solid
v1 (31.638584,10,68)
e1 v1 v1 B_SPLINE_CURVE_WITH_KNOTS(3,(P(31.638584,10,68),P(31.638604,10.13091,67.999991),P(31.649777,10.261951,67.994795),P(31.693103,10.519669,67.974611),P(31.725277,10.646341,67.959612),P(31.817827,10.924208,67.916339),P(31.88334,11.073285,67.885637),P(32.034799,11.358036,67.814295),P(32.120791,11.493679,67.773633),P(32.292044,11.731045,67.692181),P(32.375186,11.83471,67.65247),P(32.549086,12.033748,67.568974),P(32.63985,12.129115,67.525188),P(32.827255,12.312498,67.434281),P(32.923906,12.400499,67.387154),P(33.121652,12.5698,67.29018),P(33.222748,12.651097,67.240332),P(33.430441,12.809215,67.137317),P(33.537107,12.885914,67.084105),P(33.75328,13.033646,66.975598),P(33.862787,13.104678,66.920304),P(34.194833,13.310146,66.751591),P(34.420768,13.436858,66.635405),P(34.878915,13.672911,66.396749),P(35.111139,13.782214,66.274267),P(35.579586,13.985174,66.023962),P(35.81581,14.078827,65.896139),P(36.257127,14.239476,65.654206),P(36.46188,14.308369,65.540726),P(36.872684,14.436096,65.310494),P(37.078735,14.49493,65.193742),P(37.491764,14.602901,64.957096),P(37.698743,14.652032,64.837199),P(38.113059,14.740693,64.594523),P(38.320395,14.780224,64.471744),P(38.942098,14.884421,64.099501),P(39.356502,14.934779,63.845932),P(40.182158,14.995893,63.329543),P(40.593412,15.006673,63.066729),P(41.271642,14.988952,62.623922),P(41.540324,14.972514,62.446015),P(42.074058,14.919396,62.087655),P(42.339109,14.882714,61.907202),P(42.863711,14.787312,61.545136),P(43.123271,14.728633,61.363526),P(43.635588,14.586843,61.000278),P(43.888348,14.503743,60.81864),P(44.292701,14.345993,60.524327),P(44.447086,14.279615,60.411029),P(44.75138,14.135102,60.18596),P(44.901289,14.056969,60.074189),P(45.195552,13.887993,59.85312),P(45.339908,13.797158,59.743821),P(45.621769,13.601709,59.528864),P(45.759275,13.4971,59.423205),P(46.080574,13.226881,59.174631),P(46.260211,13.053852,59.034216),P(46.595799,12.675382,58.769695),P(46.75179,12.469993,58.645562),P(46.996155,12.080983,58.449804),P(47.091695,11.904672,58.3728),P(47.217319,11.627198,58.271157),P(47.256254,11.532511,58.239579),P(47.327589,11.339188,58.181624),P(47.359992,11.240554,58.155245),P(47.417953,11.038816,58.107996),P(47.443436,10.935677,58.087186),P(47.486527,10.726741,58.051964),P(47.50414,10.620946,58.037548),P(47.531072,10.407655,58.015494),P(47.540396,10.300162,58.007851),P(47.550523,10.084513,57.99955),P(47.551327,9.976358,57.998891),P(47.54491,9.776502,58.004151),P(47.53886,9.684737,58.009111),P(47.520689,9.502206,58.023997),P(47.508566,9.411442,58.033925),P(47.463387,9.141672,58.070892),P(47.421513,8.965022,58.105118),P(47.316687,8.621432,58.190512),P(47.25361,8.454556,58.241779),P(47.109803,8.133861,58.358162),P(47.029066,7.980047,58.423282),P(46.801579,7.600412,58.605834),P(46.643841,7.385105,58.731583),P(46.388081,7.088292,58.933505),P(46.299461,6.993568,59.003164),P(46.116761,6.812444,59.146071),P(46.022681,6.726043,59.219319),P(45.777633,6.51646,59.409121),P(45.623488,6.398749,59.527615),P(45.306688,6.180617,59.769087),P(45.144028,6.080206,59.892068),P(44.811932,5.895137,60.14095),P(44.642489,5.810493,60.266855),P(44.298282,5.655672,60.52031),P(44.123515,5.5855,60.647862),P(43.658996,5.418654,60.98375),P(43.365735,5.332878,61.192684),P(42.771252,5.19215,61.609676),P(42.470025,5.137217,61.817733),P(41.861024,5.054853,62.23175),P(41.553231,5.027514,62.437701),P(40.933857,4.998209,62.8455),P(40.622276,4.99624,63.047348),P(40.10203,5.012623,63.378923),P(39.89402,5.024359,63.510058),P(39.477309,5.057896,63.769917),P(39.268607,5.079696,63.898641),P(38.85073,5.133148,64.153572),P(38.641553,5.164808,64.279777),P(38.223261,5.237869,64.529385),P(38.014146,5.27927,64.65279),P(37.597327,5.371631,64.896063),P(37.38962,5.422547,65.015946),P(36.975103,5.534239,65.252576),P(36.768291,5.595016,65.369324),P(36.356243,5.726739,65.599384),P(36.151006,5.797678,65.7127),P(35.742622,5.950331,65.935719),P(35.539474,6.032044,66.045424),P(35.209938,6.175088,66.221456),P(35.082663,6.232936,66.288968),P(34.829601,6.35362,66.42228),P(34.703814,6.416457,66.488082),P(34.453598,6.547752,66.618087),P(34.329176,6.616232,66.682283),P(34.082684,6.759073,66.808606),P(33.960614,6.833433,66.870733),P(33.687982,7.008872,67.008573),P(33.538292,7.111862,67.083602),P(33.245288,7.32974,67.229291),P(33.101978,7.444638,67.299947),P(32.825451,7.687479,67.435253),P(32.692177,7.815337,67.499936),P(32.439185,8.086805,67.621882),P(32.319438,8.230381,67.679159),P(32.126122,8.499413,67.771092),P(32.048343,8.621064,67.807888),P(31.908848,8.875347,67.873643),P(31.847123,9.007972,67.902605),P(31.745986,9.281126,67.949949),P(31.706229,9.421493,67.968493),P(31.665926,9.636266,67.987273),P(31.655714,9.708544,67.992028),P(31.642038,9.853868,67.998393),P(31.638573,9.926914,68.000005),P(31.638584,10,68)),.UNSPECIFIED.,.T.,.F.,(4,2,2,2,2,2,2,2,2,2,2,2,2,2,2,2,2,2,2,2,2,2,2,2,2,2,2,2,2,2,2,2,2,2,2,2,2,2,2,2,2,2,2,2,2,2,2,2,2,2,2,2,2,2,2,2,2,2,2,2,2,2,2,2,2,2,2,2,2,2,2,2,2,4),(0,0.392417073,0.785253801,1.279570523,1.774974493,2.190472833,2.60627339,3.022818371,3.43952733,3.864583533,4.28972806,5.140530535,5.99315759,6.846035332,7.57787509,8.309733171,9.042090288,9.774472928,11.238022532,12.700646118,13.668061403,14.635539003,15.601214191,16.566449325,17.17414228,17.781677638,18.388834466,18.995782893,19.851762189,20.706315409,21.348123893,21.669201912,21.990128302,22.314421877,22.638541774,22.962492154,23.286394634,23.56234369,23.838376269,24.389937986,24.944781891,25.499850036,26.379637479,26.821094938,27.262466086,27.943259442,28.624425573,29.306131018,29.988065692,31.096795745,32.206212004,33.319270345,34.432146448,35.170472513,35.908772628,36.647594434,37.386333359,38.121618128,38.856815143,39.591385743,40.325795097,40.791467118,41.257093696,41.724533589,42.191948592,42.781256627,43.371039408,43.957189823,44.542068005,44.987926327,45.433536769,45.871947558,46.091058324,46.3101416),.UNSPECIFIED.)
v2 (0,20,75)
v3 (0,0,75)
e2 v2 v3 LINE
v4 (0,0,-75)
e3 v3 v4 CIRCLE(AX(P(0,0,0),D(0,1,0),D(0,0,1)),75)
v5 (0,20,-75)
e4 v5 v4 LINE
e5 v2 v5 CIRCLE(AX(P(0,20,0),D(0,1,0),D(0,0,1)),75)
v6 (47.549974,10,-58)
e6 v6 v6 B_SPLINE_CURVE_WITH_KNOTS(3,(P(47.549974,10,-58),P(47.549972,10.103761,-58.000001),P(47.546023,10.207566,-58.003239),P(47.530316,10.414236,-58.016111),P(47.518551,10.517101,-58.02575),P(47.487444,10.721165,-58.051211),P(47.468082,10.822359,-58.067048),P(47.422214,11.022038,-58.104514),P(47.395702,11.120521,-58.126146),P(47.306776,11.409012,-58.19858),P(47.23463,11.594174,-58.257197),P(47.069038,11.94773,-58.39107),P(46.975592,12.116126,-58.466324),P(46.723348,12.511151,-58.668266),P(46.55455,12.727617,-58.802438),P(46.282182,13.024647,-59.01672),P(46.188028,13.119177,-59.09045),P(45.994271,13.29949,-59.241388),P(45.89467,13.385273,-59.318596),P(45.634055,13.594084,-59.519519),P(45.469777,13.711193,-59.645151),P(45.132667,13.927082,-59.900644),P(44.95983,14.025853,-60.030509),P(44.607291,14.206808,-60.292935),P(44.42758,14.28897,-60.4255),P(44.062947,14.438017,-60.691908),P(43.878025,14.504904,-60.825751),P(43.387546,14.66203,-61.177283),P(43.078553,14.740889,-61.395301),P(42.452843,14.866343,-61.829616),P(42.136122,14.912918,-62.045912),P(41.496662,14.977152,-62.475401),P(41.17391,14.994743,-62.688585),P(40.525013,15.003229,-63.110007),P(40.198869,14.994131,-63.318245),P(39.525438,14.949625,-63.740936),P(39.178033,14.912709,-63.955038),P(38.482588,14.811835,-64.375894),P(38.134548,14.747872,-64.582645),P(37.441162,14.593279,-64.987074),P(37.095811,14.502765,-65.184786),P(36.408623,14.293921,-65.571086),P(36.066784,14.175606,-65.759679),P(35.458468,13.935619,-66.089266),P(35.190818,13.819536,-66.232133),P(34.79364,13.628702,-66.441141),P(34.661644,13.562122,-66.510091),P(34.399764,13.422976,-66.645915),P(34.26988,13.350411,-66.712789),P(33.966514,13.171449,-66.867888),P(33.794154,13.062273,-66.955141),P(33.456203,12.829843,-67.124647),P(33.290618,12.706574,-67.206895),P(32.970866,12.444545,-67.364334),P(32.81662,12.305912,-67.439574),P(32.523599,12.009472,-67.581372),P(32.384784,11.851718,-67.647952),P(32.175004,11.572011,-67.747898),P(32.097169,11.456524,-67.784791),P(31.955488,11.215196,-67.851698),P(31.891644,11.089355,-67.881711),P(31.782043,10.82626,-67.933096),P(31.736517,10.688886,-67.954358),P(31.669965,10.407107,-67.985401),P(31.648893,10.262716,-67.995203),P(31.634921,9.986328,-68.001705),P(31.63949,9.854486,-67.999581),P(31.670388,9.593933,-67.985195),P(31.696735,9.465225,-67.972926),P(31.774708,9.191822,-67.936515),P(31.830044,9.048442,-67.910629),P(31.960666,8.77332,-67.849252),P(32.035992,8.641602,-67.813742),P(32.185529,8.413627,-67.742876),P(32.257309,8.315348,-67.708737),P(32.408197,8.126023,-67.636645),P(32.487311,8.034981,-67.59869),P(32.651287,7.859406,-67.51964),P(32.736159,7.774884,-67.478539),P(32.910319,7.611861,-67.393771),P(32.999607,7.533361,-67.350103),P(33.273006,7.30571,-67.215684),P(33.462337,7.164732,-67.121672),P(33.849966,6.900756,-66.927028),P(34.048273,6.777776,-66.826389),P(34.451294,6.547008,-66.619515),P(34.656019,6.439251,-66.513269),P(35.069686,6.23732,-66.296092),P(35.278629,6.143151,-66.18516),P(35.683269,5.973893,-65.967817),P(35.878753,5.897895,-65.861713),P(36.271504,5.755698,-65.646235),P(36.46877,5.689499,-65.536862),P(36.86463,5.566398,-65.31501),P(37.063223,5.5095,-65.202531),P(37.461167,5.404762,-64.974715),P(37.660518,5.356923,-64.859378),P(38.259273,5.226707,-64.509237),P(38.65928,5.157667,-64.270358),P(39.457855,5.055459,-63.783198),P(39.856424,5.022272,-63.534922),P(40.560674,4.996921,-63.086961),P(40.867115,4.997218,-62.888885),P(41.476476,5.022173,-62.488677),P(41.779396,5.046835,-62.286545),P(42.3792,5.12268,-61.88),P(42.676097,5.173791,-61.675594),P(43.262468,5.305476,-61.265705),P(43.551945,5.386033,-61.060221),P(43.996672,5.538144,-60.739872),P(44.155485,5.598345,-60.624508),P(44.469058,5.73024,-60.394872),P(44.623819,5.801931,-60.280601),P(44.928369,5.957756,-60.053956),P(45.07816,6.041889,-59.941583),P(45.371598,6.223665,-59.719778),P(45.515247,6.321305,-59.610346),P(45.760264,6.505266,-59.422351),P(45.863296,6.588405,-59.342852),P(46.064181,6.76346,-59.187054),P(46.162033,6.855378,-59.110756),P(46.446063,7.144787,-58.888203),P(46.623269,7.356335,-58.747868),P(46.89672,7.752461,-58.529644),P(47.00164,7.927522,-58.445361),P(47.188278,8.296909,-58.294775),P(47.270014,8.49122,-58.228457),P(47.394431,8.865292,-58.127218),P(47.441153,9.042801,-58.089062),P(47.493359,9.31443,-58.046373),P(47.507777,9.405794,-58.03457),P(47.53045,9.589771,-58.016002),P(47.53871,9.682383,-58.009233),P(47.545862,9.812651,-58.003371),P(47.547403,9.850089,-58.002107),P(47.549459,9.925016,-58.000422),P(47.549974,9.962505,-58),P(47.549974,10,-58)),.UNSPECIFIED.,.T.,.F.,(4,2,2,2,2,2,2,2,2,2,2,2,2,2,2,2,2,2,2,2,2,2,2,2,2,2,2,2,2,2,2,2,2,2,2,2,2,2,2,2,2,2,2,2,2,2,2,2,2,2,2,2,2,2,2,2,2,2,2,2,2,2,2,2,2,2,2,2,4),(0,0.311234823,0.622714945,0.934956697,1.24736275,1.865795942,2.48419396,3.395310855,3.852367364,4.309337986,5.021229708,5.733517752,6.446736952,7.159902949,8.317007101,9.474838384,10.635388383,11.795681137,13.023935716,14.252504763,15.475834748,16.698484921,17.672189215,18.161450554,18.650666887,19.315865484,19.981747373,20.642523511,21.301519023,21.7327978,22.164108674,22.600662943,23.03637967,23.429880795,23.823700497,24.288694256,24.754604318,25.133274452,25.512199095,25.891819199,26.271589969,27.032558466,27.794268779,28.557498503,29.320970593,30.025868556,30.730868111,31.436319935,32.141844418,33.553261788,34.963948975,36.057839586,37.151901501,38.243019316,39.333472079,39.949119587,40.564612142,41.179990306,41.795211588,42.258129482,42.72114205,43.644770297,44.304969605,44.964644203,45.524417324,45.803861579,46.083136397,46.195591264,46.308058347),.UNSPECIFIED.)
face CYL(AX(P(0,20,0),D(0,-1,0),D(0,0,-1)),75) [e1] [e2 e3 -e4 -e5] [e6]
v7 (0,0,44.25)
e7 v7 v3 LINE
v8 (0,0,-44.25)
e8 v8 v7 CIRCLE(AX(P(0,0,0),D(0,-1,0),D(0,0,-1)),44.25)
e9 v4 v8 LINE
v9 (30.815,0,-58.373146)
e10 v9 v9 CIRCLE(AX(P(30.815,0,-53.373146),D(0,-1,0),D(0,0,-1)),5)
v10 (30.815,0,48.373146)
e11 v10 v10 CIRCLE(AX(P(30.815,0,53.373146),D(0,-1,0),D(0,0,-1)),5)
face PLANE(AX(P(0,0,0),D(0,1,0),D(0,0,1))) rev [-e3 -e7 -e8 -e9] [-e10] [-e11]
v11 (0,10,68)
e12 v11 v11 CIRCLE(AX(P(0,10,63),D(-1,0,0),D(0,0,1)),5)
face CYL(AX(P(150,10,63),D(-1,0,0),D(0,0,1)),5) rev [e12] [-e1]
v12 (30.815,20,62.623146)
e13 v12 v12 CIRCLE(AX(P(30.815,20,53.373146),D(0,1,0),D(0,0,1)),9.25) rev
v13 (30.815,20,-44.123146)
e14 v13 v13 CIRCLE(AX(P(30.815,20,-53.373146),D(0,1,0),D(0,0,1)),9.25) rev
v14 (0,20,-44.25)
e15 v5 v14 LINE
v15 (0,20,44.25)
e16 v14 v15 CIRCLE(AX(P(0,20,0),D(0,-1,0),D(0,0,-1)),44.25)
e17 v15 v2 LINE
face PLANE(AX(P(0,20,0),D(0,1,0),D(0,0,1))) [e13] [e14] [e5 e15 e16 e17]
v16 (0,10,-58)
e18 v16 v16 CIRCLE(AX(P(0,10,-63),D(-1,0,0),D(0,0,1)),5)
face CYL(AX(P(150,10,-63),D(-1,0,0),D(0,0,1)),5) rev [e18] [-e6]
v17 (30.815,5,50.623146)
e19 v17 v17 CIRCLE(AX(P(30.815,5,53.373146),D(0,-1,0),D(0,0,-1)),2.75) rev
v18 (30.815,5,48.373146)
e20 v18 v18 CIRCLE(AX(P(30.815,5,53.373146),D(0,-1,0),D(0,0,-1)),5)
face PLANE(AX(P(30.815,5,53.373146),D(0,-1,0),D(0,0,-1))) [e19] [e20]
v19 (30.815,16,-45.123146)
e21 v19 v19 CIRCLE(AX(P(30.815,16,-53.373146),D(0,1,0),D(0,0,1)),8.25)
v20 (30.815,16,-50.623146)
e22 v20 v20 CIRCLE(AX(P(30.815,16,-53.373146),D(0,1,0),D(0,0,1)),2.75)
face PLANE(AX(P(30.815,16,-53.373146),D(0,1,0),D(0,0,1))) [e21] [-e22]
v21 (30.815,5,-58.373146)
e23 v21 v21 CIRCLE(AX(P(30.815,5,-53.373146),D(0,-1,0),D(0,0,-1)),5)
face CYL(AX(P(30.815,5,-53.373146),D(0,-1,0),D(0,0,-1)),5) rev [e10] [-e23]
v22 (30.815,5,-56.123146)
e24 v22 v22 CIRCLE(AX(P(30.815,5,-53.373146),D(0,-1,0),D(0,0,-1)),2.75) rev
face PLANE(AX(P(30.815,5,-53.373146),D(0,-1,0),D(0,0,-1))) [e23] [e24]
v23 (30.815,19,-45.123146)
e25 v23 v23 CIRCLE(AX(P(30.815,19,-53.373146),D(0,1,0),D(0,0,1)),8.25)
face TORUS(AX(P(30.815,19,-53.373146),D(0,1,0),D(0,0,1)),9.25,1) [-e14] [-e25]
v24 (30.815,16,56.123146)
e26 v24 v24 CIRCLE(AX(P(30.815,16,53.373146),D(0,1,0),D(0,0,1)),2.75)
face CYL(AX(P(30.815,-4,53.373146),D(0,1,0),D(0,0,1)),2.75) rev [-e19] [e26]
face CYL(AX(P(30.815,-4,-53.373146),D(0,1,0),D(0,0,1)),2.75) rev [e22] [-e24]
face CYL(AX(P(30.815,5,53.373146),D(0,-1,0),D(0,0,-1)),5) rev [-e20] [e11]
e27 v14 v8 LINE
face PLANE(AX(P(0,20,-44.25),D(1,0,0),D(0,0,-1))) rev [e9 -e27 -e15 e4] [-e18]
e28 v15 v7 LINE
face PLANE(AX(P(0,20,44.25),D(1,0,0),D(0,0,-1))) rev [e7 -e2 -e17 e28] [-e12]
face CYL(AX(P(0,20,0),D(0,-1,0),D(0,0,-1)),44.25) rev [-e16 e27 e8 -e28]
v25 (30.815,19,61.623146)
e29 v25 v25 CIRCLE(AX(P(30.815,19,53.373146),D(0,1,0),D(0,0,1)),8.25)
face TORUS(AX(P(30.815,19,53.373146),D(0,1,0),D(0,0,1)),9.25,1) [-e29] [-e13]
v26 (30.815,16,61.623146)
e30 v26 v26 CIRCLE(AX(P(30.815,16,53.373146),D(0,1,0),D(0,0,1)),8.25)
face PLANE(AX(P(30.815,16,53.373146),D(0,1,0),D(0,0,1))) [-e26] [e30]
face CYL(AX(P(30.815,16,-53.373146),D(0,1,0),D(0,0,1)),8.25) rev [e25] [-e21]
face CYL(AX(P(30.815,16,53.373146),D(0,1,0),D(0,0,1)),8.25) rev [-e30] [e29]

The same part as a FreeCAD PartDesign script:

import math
import FreeCAD as App
import Part
import Sketcher
from FreeCAD import Vector
Q = App.Units.Quantity


def edges_at(feature, points):
    """Names of the edges that pass closest to the given points."""
    edges = feature.Shape.Edges
    near = lambda p: min(range(len(edges)), key=lambda i: edges[i].distToShape(Part.Vertex(*p))[0])
    return sorted({f"Edge{near(p) + 1}" for p in points})

doc = App.newDocument("Part")
body = doc.addObject("PartDesign::Body", "Body")

sketch1 = body.newObject("Sketcher::SketchObject", "Sketch")
sketch1.AttachmentSupport = (doc.getObject("XZ_Plane"), [""])
sketch1.MapMode = "FlatFace"
sketch1.addGeometry([
    Part.LineSegment(Vector(0, -75, 0), Vector(0, -44, 0)),
    Part.ArcOfCircle(Part.Circle(Vector(0, 0, 0), Vector(0, 0, 1), 44), math.radians(-90), math.radians(90)),
    Part.LineSegment(Vector(0, 44, 0), Vector(0, 75, 0)),
    Part.ArcOfCircle(Part.Circle(Vector(0, 0, 0), Vector(0, 0, 1), 75), math.radians(-90), math.radians(90)),
], False)
sketch1.addConstraint([
    Sketcher.Constraint("Coincident", 0, 2, 1, 1),
    Sketcher.Constraint("Coincident", 1, 2, 2, 1),
    Sketcher.Constraint("Coincident", 2, 2, 3, 2),
    Sketcher.Constraint("Coincident", 3, 1, 0, 1),
    Sketcher.Constraint("Vertical", 0),
    Sketcher.Constraint("Vertical", 2),
    Sketcher.Constraint("Coincident", 1, 3, -1, 1),
    Sketcher.Constraint("Coincident", 3, 3, -1, 1),
    Sketcher.Constraint("PointOnObject", 0, 2, -2),
    Sketcher.Constraint("PointOnObject", 1, 2, -2),
    Sketcher.Constraint("Radius", 3, Q("75 mm")),
    Sketcher.Constraint("Radius", 1, Q("44.25 mm")),
])
pad1 = body.newObject("PartDesign::Pad", "Pad")
pad1.Profile = sketch1
pad1.Length = 20
pad1.Reversed = True

sketch2 = body.newObject("Sketcher::SketchObject", "Sketch001")
sketch2.AttachmentSupport = (doc.getObject("YZ_Plane"), [""])
sketch2.MapMode = "FlatFace"
sketch2.addGeometry([
    Part.Circle(Vector(10, -63, 0), Vector(0, 0, 1), 5),
    Part.Circle(Vector(10, 63, 0), Vector(0, 0, 1), 5),
], False)
sketch2.addConstraint([
    Sketcher.Constraint("Equal", 0, 1),
    Sketcher.Constraint("Symmetric", 0, 3, 1, 3, -1),
    Sketcher.Constraint("Diameter", 0, Q("10 mm")),
    Sketcher.Constraint("DistanceX", -1, 1, 0, 3, Q("10 mm")),
    Sketcher.Constraint("DistanceY", 0, 3, -1, 1, Q("63 mm")),
])
pocket1 = body.newObject("PartDesign::Pocket", "Pocket")
pocket1.Profile = sketch2
pocket1.Length = 150
pocket1.Reversed = True

sketch3 = body.newObject("Sketcher::SketchObject", "Sketch002")
sketch3.AttachmentSupport = (doc.getObject("XZ_Plane"), [""])
sketch3.MapMode = "FlatFace"
sketch3.AttachmentOffset = App.Placement(Vector(0, 0, -20), App.Rotation())
sketch3.addGeometry([
    Part.Circle(Vector(31, 53, 0), Vector(0, 0, 1), 8),
    Part.Circle(Vector(31, -53, 0), Vector(0, 0, 1), 8),
], False)
sketch3.addConstraint([
    Sketcher.Constraint("Equal", 0, 1),
    Sketcher.Constraint("Symmetric", 0, 3, 1, 3, -1),
    Sketcher.Constraint("Diameter", 0, Q("16.5 mm")),
    Sketcher.Constraint("DistanceX", -1, 1, 0, 3, Q("30.815 mm")),
    Sketcher.Constraint("DistanceY", 1, 3, 0, 3, Q("106.746291 mm")),
])
pocket2 = body.newObject("PartDesign::Pocket", "Pocket001")
pocket2.Profile = sketch3
pocket2.Length = 4
pocket2.Reversed = True

sketch4 = body.newObject("Sketcher::SketchObject", "Sketch003")
sketch4.AttachmentSupport = (doc.getObject("XZ_Plane"), [""])
sketch4.MapMode = "FlatFace"
sketch4.AttachmentOffset = App.Placement(Vector(0, 0, -16), App.Rotation())
sketch4.addGeometry([
    Part.Circle(Vector(30.8, -53.4, 0), Vector(0, 0, 1), 2.8),
    Part.Circle(Vector(30.8, 53.4, 0), Vector(0, 0, 1), 2.8),
], False)
sketch4.addConstraint([
    Sketcher.Constraint("Equal", 0, 1),
    Sketcher.Constraint("Symmetric", 0, 3, 1, 3, -1),
    Sketcher.Constraint("Diameter", 0, Q("5.5 mm")),
    Sketcher.Constraint("DistanceX", -1, 1, 0, 3, Q("30.815 mm")),
    Sketcher.Constraint("DistanceY", 0, 3, 1, 3, Q("106.746291 mm")),
])
pocket3 = body.newObject("PartDesign::Pocket", "Pocket002")
pocket3.Profile = sketch4
pocket3.Length = 20
pocket3.Reversed = True

sketch5 = body.newObject("Sketcher::SketchObject", "Sketch004")
sketch5.AttachmentSupport = (doc.getObject("XZ_Plane"), [""])
sketch5.MapMode = "FlatFace"
sketch5.addGeometry([
    Part.Circle(Vector(31, 53, 0), Vector(0, 0, 1), 5),
    Part.Circle(Vector(31, -53, 0), Vector(0, 0, 1), 5),
], False)
sketch5.addConstraint([
    Sketcher.Constraint("Equal", 0, 1),
    Sketcher.Constraint("Symmetric", 0, 3, 1, 3, -1),
    Sketcher.Constraint("Diameter", 0, Q("10 mm")),
    Sketcher.Constraint("DistanceX", -1, 1, 0, 3, Q("30.815 mm")),
    Sketcher.Constraint("DistanceY", 1, 3, 0, 3, Q("106.746291 mm")),
])
pocket4 = body.newObject("PartDesign::Pocket", "Pocket003")
pocket4.Profile = sketch5
pocket4.Length = 5
doc.recompute()

fillet = body.newObject("PartDesign::Fillet", "Fillet")
fillet.Base = (pocket4, edges_at(pocket4, [(30.815, 20, 45.123), (30.815, 20, -61.623)]))
fillet.Radius = 1

doc.recompute()
